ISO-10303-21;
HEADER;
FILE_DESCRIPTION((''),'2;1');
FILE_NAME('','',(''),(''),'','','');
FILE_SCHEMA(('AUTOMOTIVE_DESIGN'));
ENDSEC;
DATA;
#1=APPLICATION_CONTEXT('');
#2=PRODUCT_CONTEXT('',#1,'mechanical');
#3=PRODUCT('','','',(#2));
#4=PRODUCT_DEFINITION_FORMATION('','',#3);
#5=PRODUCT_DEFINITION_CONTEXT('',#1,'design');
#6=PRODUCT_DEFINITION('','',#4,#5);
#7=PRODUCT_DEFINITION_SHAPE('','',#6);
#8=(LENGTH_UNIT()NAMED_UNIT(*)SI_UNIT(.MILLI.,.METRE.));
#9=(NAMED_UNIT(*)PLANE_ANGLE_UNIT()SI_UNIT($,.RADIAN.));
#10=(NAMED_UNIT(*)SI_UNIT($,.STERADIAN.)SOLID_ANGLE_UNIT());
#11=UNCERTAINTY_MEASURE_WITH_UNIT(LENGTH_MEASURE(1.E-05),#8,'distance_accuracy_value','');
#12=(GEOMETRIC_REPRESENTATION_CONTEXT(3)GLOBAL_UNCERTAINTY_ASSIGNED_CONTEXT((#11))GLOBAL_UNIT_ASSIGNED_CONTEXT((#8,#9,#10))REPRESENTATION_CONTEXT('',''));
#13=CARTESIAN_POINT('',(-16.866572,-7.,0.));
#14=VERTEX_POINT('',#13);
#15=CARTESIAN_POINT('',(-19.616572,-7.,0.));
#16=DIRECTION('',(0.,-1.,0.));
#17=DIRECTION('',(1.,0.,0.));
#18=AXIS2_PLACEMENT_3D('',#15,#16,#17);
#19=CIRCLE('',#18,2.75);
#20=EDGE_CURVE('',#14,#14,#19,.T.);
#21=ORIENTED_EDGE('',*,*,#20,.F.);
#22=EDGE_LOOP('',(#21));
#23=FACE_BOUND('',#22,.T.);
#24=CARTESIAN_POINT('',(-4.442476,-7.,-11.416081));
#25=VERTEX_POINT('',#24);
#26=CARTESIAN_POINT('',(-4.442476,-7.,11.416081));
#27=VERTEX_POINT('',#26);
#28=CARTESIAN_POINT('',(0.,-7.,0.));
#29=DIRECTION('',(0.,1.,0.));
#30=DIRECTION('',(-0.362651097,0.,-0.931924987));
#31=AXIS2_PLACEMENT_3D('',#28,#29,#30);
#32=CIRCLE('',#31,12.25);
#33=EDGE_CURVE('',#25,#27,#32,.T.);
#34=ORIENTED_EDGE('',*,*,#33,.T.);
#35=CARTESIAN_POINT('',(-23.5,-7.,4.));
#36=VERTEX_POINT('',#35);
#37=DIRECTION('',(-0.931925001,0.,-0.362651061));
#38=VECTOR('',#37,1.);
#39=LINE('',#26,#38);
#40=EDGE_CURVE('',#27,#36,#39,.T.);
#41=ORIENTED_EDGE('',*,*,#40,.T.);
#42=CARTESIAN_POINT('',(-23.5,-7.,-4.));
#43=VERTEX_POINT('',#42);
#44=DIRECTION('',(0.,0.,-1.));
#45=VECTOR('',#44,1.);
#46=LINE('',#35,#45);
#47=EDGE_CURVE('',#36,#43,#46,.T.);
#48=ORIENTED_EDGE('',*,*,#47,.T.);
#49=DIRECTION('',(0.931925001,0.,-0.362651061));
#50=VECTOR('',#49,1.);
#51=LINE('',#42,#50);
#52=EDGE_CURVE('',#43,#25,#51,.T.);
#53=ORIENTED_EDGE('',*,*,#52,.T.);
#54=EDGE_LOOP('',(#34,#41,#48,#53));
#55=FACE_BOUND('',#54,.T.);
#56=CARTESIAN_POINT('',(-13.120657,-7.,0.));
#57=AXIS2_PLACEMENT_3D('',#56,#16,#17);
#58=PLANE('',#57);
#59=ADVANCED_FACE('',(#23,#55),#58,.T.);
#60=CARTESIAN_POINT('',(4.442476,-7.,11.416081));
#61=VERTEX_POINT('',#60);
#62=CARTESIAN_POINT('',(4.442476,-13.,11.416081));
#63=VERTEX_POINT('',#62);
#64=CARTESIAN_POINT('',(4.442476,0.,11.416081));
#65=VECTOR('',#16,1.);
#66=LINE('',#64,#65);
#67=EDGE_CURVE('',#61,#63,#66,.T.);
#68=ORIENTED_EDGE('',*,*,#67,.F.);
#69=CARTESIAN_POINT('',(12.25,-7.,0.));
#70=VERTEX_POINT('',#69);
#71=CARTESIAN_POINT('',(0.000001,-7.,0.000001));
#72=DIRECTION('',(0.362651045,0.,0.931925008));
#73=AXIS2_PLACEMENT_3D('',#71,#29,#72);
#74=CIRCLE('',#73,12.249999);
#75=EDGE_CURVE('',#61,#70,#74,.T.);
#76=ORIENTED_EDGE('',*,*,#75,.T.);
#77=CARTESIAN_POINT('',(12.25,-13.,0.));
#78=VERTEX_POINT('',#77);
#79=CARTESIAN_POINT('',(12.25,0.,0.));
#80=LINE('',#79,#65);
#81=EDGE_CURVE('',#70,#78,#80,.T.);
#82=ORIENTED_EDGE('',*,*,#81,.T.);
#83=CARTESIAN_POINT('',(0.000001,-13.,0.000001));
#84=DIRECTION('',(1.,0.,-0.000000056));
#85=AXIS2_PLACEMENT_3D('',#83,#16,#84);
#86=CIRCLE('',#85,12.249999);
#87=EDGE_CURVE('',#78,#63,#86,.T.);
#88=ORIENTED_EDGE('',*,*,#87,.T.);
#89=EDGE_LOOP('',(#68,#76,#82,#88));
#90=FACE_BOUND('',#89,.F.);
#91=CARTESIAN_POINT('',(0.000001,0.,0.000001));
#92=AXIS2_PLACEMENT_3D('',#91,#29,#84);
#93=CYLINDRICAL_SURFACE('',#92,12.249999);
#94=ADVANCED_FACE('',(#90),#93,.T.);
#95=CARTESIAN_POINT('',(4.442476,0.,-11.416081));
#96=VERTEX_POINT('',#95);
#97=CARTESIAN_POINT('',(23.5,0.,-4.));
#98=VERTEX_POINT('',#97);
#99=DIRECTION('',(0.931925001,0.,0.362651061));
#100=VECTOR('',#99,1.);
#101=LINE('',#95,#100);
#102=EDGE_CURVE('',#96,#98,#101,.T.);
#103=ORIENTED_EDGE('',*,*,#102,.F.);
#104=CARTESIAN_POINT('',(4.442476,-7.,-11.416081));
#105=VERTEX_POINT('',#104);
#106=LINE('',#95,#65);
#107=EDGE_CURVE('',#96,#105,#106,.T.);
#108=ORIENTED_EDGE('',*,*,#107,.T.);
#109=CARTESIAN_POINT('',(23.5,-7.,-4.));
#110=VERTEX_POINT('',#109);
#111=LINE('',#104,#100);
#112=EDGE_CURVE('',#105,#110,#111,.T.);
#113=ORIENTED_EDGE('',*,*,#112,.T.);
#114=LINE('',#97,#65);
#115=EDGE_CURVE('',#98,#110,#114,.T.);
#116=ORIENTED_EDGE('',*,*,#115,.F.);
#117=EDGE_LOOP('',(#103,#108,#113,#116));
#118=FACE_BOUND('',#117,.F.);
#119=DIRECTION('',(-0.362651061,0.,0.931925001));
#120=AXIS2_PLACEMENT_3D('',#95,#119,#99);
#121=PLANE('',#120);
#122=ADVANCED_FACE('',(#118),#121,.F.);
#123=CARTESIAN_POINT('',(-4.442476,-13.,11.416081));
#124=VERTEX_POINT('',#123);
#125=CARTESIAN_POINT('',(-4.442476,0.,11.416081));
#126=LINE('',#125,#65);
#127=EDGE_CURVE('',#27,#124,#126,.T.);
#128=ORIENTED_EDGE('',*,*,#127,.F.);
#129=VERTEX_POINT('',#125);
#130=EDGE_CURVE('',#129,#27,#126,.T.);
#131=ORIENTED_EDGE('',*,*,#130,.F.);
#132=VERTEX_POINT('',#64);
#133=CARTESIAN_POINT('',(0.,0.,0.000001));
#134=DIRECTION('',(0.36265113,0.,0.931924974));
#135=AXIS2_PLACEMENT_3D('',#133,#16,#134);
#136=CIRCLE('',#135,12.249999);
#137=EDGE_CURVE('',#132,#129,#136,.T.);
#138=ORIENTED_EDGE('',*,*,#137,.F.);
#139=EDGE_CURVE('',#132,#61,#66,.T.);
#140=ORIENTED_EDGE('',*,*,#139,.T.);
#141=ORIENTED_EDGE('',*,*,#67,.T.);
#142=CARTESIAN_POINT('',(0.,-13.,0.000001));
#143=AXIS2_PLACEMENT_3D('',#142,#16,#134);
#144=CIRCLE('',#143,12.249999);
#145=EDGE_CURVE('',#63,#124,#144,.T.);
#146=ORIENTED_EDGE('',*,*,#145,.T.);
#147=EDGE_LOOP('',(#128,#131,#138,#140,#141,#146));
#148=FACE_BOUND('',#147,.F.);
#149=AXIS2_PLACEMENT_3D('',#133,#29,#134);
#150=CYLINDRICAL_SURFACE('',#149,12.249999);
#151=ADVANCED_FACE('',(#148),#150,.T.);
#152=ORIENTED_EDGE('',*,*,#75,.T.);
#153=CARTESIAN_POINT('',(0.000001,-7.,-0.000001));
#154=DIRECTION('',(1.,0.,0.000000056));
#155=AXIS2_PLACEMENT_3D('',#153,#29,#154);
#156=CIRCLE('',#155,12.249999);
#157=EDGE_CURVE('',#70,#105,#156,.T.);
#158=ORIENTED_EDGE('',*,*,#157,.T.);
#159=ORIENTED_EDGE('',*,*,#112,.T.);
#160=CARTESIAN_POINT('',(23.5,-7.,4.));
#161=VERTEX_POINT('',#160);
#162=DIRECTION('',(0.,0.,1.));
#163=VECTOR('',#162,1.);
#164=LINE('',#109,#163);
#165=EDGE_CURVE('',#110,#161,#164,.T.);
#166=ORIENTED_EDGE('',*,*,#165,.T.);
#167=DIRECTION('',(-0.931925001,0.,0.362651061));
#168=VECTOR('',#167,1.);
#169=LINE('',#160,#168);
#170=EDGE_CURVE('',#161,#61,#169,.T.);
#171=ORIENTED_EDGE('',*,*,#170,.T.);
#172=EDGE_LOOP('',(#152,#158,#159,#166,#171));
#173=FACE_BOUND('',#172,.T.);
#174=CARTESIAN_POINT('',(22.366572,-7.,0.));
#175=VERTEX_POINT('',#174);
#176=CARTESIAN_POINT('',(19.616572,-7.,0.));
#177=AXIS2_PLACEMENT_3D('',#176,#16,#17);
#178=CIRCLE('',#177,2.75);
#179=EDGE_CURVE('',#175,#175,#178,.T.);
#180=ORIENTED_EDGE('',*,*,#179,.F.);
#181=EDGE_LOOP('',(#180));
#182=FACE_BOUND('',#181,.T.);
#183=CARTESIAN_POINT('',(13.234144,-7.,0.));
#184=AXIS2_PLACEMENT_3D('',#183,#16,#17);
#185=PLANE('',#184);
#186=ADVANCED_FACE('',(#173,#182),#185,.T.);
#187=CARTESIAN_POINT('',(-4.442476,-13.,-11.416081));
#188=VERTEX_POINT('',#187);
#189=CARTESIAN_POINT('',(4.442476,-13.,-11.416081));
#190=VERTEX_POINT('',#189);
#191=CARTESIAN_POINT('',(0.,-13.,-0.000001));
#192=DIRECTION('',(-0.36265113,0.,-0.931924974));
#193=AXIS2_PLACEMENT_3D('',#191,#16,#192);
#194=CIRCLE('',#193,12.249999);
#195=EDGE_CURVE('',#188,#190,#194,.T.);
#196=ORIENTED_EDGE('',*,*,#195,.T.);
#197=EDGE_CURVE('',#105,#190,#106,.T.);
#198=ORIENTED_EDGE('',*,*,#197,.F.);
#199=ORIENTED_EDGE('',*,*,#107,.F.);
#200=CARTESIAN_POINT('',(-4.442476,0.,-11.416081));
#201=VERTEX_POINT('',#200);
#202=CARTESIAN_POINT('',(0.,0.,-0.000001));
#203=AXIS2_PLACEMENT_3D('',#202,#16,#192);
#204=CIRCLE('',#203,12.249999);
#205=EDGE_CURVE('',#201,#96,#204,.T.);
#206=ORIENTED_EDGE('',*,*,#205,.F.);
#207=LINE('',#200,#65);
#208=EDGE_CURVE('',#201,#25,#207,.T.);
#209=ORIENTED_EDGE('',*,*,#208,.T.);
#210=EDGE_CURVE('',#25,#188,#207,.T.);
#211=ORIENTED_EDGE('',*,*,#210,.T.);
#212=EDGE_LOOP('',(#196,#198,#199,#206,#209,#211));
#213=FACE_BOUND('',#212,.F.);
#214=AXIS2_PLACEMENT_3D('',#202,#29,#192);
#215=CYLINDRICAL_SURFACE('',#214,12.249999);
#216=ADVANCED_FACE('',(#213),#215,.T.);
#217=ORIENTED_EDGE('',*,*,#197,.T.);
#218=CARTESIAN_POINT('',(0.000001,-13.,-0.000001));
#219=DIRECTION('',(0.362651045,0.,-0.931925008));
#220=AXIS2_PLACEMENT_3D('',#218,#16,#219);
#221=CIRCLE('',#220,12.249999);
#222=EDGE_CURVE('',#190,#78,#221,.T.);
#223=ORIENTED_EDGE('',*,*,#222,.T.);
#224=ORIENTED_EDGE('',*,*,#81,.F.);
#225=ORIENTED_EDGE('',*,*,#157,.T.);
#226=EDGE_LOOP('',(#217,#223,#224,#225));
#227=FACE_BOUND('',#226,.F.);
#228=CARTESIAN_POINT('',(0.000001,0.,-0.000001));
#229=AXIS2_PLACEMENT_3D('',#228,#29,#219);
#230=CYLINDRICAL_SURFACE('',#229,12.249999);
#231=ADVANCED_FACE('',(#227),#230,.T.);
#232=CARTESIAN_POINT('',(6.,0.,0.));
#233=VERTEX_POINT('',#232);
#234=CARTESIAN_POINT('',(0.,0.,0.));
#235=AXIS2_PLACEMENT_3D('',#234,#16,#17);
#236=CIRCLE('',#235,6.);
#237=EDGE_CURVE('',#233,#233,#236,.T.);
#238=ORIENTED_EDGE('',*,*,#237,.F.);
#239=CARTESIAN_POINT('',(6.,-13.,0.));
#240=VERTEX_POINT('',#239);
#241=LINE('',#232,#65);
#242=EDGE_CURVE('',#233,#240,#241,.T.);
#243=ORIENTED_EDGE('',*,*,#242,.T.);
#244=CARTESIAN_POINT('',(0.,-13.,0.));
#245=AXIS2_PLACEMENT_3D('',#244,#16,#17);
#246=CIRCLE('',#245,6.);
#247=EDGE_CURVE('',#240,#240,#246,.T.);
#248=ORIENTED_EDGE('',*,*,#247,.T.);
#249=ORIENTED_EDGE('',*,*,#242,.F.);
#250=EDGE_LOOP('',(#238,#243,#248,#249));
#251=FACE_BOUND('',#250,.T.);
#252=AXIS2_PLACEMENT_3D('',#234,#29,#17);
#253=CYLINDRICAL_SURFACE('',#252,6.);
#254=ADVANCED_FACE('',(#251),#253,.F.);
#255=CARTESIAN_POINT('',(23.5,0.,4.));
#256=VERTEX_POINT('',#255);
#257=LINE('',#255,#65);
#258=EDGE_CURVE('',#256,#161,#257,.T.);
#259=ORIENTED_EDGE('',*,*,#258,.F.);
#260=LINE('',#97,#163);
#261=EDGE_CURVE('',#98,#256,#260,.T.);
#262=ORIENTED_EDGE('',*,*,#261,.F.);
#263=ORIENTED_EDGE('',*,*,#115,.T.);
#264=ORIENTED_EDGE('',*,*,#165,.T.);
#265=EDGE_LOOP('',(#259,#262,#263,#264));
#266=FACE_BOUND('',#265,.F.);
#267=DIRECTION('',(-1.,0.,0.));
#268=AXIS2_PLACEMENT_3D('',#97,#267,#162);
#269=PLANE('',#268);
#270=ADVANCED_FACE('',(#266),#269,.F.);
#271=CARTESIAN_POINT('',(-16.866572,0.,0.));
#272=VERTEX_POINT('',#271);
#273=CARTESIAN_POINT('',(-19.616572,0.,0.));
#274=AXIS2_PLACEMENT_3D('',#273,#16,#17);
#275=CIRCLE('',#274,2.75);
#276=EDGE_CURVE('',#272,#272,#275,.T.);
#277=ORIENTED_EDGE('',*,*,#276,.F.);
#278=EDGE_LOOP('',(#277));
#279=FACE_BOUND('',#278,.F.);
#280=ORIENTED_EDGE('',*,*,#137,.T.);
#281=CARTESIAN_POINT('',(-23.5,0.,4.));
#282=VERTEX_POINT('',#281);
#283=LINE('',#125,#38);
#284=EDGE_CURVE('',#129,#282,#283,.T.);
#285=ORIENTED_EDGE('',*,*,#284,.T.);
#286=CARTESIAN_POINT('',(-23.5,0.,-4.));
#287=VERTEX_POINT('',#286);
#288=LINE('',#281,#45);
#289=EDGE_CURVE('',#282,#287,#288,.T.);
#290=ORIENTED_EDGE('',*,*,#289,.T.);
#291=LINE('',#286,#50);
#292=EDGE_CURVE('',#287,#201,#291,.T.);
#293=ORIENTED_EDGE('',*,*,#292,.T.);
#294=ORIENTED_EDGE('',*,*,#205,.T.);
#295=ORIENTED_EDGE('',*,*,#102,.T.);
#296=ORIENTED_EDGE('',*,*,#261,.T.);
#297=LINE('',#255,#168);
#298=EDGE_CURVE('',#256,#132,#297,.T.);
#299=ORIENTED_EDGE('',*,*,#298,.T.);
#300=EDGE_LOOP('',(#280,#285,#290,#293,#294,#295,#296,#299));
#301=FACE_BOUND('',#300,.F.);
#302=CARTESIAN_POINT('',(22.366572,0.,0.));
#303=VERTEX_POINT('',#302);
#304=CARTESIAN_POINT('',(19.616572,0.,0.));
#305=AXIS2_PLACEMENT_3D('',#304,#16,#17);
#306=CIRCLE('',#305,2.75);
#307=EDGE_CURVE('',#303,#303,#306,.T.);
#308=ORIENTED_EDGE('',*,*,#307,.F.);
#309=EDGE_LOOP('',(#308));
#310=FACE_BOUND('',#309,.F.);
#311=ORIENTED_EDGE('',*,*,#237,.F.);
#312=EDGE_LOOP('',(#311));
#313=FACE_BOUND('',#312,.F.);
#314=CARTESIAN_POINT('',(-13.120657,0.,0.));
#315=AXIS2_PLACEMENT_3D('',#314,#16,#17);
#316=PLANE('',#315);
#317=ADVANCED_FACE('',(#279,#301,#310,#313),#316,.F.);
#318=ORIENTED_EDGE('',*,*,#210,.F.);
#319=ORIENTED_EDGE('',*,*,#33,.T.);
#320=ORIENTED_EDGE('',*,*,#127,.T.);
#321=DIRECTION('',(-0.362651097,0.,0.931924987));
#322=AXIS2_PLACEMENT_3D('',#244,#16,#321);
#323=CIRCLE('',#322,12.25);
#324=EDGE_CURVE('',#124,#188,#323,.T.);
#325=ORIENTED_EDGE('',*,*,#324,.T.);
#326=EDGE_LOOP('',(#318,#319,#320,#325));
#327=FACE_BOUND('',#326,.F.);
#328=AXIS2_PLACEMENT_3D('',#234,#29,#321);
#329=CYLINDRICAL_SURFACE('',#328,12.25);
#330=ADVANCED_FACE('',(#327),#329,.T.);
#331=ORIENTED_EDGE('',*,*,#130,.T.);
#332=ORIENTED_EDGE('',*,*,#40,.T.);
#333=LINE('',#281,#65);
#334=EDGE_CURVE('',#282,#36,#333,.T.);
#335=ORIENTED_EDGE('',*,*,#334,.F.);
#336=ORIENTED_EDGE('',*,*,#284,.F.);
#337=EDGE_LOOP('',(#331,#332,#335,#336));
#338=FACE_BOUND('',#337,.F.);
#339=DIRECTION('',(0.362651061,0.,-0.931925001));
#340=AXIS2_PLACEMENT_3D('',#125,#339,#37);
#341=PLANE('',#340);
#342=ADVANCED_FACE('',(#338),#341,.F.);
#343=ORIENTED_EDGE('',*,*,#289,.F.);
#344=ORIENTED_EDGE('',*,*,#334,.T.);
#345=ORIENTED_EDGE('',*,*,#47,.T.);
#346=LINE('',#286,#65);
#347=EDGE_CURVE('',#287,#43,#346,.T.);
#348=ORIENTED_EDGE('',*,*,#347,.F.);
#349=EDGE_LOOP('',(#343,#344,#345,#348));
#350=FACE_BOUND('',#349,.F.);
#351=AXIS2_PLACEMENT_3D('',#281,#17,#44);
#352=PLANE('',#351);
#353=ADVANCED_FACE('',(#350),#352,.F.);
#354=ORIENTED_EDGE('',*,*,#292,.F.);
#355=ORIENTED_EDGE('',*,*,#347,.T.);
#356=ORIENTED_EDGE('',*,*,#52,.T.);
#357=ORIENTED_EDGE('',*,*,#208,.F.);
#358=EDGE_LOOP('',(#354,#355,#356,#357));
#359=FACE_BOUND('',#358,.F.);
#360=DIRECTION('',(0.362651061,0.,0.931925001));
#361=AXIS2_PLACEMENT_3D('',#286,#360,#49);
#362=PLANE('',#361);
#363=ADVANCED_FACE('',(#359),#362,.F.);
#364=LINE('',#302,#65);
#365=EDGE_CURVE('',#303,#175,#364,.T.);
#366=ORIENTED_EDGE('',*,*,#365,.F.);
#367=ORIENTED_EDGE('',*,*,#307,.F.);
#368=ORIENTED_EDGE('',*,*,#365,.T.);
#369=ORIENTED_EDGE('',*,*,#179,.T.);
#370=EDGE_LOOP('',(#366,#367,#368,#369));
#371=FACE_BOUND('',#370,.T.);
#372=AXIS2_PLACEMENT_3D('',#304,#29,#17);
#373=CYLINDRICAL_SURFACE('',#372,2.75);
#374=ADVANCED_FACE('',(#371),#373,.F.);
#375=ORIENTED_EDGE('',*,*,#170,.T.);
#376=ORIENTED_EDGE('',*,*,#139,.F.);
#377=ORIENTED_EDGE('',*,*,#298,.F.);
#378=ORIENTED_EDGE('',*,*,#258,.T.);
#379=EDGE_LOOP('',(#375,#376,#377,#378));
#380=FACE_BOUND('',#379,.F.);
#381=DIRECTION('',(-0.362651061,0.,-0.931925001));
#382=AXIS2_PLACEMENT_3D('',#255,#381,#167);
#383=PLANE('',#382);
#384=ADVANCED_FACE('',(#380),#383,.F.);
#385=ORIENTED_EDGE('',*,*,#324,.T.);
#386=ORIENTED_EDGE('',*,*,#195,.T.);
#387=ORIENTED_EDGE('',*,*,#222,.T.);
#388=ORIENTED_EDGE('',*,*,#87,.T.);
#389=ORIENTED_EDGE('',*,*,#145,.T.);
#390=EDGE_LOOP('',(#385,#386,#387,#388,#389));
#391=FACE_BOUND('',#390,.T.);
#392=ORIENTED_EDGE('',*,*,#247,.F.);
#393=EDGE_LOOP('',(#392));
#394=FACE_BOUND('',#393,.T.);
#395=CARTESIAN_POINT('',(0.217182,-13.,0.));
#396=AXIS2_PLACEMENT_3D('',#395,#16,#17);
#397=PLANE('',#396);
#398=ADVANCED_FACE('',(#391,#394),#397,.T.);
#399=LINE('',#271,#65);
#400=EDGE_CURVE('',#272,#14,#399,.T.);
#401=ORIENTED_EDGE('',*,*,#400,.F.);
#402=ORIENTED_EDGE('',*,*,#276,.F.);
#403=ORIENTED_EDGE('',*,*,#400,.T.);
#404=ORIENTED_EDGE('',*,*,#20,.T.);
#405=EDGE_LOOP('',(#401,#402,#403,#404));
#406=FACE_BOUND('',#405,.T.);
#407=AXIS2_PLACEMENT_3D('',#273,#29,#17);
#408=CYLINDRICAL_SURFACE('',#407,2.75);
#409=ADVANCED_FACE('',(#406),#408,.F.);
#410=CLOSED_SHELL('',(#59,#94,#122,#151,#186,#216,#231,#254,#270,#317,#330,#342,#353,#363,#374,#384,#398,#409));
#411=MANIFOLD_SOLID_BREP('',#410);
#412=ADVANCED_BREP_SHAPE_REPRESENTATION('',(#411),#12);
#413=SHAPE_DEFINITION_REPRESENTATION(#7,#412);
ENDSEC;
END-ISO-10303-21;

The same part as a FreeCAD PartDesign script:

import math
import FreeCAD as App
import Part
import Sketcher
Q = App.Units.Quantity

doc = App.newDocument("Part")
body = doc.addObject("PartDesign::Body", "Body")

# Sketch on XZ plane
sketch1 = doc.addObject("Sketcher::SketchObject", "Sketch")
body.addObject(sketch1)
sketch1.AttachmentSupport = (doc.XZ_Plane, [""])
sketch1.MapMode = "FlatFace"
sketch1.addGeometry(Part.ArcOfCircle(Part.Circle(App.Vector(0, 0, 0), App.Vector(0, 0, 1), 12), math.radians(-69), math.radians(0)), False)
sketch1.addGeometry(Part.ArcOfCircle(Part.Circle(App.Vector(0, 0, 0), App.Vector(0, 0, 1), 12), math.radians(0), math.radians(69)), False)
sketch1.addGeometry(Part.ArcOfCircle(Part.Circle(App.Vector(0, 0, 0), App.Vector(0, 0, 1), 12), math.radians(69), math.radians(111)), False)
sketch1.addGeometry(Part.ArcOfCircle(Part.Circle(App.Vector(0, 0, 0), App.Vector(0, 0, 1), 12), math.radians(111), math.radians(249)), False)
sketch1.addGeometry(Part.ArcOfCircle(Part.Circle(App.Vector(0, 0, 0), App.Vector(0, 0, 1), 12), math.radians(-111), math.radians(-69)), False)
sketch1.addGeometry(Part.Circle(App.Vector(0, 0, 0), App.Vector(0, 0, 1), 6), False)
sketch1.addConstraint(Sketcher.Constraint("Tangent", 0, 2, 1, 1))
sketch1.addConstraint(Sketcher.Constraint("Tangent", 1, 2, 2, 1))
sketch1.addConstraint(Sketcher.Constraint("Tangent", 2, 2, 3, 1))
sketch1.addConstraint(Sketcher.Constraint("Tangent", 3, 2, 4, 1))
sketch1.addConstraint(Sketcher.Constraint("Tangent", 4, 2, 0, 1))
sketch1.addConstraint(Sketcher.Constraint("Coincident", 0, 3, -1, 1))
sketch1.addConstraint(Sketcher.Constraint("Coincident", 2, 3, -1, 1))
sketch1.addConstraint(Sketcher.Constraint("Coincident", 5, 3, -1, 1))
sketch1.addConstraint(Sketcher.Constraint("PointOnObject", 0, 2, -1))
sketch1.addConstraint(Sketcher.Constraint("Horizontal", 1, 2, 2, 2))
sketch1.addConstraint(Sketcher.Constraint("Horizontal", 3, 2, 4, 2))
sketch1.addConstraint(Sketcher.Constraint("Vertical", 2, 2, 3, 2))
sketch1.addConstraint(Sketcher.Constraint("Diameter", 5, Q("12 mm")))
sketch1.addConstraint(Sketcher.Constraint("Radius", 0, Q("12.249999 mm")))
sketch1.addConstraint(Sketcher.Constraint("DistanceY", -1, 1, 1, 2, Q("11.416081 mm")))
pad1 = doc.addObject("PartDesign::Pad", "Pad")
body.addObject(pad1)
pad1.Profile = sketch1
pad1.Length = 13

# Sketch on XZ plane
sketch2 = doc.addObject("Sketcher::SketchObject", "Sketch001")
body.addObject(sketch2)
sketch2.AttachmentSupport = (doc.XZ_Plane, [""])
sketch2.MapMode = "FlatFace"
sketch2.addGeometry(Part.ArcOfCircle(Part.Circle(App.Vector(0, 0, 0), App.Vector(0, 0, 1), 12.2), math.radians(111), math.radians(249)), False)
sketch2.addGeometry(Part.LineSegment(App.Vector(-4.4, 11.4, 0), App.Vector(-23.5, 4, 0)), False)
sketch2.addGeometry(Part.LineSegment(App.Vector(-23.5, 4, 0), App.Vector(-23.5, -4, 0)), False)
sketch2.addGeometry(Part.LineSegment(App.Vector(-23.5, -4, 0), App.Vector(-4.4, -11.4, 0)), False)
sketch2.addGeometry(Part.Circle(App.Vector(-19.6, 0, 0), App.Vector(0, 0, 1), 2.8), False)
sketch2.addGeometry(Part.ArcOfCircle(Part.Circle(App.Vector(0, 0, 0), App.Vector(0, 0, 1), 12.2), math.radians(0), math.radians(69)), False)
sketch2.addGeometry(Part.ArcOfCircle(Part.Circle(App.Vector(0, 0, 0), App.Vector(0, 0, 1), 12.2), math.radians(-69), math.radians(0)), False)
sketch2.addGeometry(Part.LineSegment(App.Vector(4.4, -11.4, 0), App.Vector(23.5, -4, 0)), False)
sketch2.addGeometry(Part.LineSegment(App.Vector(23.5, -4, 0), App.Vector(23.5, 4, 0)), False)
sketch2.addGeometry(Part.LineSegment(App.Vector(23.5, 4, 0), App.Vector(4.4, 11.4, 0)), False)
sketch2.addGeometry(Part.Circle(App.Vector(19.6, 0, 0), App.Vector(0, 0, 1), 2.8), False)
sketch2.addConstraint(Sketcher.Constraint("Tangent", 0, 1, 1, 1))
sketch2.addConstraint(Sketcher.Constraint("Coincident", 1, 2, 2, 1))
sketch2.addConstraint(Sketcher.Constraint("Coincident", 2, 2, 3, 1))
sketch2.addConstraint(Sketcher.Constraint("Tangent", 3, 2, 0, 2))
sketch2.addConstraint(Sketcher.Constraint("Tangent", 5, 1, 6, 2))
sketch2.addConstraint(Sketcher.Constraint("Tangent", 6, 1, 7, 1))
sketch2.addConstraint(Sketcher.Constraint("Coincident", 7, 2, 8, 1))
sketch2.addConstraint(Sketcher.Constraint("Coincident", 8, 2, 9, 1))
sketch2.addConstraint(Sketcher.Constraint("Tangent", 9, 2, 5, 2))
sketch2.addConstraint(Sketcher.Constraint("Vertical", 2))
sketch2.addConstraint(Sketcher.Constraint("Vertical", 8))
sketch2.addConstraint(Sketcher.Constraint("Coincident", 0, 3, -1, 1))
sketch2.addConstraint(Sketcher.Constraint("Coincident", 5, 3, -1, 1))
sketch2.addConstraint(Sketcher.Constraint("Equal", 0, 5))
sketch2.addConstraint(Sketcher.Constraint("Equal", 5, 6))
sketch2.addConstraint(Sketcher.Constraint("Equal", 4, 10))
sketch2.addConstraint(Sketcher.Constraint("Symmetric", 4, 3, 10, 3, -1, 1))
sketch2.addConstraint(Sketcher.Constraint("Symmetric", 1, 2, 7, 2, -1, 1))
sketch2.addConstraint(Sketcher.Constraint("PointOnObject", 4, 3, -1))
sketch2.addConstraint(Sketcher.Constraint("PointOnObject", 5, 1, -1))
sketch2.addConstraint(Sketcher.Constraint("Parallel", 3, 9))
sketch2.addConstraint(Sketcher.Constraint("Horizontal", 3, 2, 6, 1))
sketch2.addConstraint(Sketcher.Constraint("Diameter", 4, Q("5.5 mm")))
sketch2.addConstraint(Sketcher.Constraint("DistanceY", 2, 2, 2, 1, Q("8 mm")))
sketch2.addConstraint(Sketcher.Constraint("Radius", 0, Q("12.25 mm")))
sketch2.addConstraint(Sketcher.Constraint("DistanceX", 1, 2, -1, 1, Q("23.5 mm")))
sketch2.addConstraint(Sketcher.Constraint("DistanceX", 4, 3, 0, 3, Q("19.616572 mm")))
pad2 = doc.addObject("PartDesign::Pad", "Pad001")
body.addObject(pad2)
pad2.Profile = sketch2
pad2.Length = 7

doc.recompute()
